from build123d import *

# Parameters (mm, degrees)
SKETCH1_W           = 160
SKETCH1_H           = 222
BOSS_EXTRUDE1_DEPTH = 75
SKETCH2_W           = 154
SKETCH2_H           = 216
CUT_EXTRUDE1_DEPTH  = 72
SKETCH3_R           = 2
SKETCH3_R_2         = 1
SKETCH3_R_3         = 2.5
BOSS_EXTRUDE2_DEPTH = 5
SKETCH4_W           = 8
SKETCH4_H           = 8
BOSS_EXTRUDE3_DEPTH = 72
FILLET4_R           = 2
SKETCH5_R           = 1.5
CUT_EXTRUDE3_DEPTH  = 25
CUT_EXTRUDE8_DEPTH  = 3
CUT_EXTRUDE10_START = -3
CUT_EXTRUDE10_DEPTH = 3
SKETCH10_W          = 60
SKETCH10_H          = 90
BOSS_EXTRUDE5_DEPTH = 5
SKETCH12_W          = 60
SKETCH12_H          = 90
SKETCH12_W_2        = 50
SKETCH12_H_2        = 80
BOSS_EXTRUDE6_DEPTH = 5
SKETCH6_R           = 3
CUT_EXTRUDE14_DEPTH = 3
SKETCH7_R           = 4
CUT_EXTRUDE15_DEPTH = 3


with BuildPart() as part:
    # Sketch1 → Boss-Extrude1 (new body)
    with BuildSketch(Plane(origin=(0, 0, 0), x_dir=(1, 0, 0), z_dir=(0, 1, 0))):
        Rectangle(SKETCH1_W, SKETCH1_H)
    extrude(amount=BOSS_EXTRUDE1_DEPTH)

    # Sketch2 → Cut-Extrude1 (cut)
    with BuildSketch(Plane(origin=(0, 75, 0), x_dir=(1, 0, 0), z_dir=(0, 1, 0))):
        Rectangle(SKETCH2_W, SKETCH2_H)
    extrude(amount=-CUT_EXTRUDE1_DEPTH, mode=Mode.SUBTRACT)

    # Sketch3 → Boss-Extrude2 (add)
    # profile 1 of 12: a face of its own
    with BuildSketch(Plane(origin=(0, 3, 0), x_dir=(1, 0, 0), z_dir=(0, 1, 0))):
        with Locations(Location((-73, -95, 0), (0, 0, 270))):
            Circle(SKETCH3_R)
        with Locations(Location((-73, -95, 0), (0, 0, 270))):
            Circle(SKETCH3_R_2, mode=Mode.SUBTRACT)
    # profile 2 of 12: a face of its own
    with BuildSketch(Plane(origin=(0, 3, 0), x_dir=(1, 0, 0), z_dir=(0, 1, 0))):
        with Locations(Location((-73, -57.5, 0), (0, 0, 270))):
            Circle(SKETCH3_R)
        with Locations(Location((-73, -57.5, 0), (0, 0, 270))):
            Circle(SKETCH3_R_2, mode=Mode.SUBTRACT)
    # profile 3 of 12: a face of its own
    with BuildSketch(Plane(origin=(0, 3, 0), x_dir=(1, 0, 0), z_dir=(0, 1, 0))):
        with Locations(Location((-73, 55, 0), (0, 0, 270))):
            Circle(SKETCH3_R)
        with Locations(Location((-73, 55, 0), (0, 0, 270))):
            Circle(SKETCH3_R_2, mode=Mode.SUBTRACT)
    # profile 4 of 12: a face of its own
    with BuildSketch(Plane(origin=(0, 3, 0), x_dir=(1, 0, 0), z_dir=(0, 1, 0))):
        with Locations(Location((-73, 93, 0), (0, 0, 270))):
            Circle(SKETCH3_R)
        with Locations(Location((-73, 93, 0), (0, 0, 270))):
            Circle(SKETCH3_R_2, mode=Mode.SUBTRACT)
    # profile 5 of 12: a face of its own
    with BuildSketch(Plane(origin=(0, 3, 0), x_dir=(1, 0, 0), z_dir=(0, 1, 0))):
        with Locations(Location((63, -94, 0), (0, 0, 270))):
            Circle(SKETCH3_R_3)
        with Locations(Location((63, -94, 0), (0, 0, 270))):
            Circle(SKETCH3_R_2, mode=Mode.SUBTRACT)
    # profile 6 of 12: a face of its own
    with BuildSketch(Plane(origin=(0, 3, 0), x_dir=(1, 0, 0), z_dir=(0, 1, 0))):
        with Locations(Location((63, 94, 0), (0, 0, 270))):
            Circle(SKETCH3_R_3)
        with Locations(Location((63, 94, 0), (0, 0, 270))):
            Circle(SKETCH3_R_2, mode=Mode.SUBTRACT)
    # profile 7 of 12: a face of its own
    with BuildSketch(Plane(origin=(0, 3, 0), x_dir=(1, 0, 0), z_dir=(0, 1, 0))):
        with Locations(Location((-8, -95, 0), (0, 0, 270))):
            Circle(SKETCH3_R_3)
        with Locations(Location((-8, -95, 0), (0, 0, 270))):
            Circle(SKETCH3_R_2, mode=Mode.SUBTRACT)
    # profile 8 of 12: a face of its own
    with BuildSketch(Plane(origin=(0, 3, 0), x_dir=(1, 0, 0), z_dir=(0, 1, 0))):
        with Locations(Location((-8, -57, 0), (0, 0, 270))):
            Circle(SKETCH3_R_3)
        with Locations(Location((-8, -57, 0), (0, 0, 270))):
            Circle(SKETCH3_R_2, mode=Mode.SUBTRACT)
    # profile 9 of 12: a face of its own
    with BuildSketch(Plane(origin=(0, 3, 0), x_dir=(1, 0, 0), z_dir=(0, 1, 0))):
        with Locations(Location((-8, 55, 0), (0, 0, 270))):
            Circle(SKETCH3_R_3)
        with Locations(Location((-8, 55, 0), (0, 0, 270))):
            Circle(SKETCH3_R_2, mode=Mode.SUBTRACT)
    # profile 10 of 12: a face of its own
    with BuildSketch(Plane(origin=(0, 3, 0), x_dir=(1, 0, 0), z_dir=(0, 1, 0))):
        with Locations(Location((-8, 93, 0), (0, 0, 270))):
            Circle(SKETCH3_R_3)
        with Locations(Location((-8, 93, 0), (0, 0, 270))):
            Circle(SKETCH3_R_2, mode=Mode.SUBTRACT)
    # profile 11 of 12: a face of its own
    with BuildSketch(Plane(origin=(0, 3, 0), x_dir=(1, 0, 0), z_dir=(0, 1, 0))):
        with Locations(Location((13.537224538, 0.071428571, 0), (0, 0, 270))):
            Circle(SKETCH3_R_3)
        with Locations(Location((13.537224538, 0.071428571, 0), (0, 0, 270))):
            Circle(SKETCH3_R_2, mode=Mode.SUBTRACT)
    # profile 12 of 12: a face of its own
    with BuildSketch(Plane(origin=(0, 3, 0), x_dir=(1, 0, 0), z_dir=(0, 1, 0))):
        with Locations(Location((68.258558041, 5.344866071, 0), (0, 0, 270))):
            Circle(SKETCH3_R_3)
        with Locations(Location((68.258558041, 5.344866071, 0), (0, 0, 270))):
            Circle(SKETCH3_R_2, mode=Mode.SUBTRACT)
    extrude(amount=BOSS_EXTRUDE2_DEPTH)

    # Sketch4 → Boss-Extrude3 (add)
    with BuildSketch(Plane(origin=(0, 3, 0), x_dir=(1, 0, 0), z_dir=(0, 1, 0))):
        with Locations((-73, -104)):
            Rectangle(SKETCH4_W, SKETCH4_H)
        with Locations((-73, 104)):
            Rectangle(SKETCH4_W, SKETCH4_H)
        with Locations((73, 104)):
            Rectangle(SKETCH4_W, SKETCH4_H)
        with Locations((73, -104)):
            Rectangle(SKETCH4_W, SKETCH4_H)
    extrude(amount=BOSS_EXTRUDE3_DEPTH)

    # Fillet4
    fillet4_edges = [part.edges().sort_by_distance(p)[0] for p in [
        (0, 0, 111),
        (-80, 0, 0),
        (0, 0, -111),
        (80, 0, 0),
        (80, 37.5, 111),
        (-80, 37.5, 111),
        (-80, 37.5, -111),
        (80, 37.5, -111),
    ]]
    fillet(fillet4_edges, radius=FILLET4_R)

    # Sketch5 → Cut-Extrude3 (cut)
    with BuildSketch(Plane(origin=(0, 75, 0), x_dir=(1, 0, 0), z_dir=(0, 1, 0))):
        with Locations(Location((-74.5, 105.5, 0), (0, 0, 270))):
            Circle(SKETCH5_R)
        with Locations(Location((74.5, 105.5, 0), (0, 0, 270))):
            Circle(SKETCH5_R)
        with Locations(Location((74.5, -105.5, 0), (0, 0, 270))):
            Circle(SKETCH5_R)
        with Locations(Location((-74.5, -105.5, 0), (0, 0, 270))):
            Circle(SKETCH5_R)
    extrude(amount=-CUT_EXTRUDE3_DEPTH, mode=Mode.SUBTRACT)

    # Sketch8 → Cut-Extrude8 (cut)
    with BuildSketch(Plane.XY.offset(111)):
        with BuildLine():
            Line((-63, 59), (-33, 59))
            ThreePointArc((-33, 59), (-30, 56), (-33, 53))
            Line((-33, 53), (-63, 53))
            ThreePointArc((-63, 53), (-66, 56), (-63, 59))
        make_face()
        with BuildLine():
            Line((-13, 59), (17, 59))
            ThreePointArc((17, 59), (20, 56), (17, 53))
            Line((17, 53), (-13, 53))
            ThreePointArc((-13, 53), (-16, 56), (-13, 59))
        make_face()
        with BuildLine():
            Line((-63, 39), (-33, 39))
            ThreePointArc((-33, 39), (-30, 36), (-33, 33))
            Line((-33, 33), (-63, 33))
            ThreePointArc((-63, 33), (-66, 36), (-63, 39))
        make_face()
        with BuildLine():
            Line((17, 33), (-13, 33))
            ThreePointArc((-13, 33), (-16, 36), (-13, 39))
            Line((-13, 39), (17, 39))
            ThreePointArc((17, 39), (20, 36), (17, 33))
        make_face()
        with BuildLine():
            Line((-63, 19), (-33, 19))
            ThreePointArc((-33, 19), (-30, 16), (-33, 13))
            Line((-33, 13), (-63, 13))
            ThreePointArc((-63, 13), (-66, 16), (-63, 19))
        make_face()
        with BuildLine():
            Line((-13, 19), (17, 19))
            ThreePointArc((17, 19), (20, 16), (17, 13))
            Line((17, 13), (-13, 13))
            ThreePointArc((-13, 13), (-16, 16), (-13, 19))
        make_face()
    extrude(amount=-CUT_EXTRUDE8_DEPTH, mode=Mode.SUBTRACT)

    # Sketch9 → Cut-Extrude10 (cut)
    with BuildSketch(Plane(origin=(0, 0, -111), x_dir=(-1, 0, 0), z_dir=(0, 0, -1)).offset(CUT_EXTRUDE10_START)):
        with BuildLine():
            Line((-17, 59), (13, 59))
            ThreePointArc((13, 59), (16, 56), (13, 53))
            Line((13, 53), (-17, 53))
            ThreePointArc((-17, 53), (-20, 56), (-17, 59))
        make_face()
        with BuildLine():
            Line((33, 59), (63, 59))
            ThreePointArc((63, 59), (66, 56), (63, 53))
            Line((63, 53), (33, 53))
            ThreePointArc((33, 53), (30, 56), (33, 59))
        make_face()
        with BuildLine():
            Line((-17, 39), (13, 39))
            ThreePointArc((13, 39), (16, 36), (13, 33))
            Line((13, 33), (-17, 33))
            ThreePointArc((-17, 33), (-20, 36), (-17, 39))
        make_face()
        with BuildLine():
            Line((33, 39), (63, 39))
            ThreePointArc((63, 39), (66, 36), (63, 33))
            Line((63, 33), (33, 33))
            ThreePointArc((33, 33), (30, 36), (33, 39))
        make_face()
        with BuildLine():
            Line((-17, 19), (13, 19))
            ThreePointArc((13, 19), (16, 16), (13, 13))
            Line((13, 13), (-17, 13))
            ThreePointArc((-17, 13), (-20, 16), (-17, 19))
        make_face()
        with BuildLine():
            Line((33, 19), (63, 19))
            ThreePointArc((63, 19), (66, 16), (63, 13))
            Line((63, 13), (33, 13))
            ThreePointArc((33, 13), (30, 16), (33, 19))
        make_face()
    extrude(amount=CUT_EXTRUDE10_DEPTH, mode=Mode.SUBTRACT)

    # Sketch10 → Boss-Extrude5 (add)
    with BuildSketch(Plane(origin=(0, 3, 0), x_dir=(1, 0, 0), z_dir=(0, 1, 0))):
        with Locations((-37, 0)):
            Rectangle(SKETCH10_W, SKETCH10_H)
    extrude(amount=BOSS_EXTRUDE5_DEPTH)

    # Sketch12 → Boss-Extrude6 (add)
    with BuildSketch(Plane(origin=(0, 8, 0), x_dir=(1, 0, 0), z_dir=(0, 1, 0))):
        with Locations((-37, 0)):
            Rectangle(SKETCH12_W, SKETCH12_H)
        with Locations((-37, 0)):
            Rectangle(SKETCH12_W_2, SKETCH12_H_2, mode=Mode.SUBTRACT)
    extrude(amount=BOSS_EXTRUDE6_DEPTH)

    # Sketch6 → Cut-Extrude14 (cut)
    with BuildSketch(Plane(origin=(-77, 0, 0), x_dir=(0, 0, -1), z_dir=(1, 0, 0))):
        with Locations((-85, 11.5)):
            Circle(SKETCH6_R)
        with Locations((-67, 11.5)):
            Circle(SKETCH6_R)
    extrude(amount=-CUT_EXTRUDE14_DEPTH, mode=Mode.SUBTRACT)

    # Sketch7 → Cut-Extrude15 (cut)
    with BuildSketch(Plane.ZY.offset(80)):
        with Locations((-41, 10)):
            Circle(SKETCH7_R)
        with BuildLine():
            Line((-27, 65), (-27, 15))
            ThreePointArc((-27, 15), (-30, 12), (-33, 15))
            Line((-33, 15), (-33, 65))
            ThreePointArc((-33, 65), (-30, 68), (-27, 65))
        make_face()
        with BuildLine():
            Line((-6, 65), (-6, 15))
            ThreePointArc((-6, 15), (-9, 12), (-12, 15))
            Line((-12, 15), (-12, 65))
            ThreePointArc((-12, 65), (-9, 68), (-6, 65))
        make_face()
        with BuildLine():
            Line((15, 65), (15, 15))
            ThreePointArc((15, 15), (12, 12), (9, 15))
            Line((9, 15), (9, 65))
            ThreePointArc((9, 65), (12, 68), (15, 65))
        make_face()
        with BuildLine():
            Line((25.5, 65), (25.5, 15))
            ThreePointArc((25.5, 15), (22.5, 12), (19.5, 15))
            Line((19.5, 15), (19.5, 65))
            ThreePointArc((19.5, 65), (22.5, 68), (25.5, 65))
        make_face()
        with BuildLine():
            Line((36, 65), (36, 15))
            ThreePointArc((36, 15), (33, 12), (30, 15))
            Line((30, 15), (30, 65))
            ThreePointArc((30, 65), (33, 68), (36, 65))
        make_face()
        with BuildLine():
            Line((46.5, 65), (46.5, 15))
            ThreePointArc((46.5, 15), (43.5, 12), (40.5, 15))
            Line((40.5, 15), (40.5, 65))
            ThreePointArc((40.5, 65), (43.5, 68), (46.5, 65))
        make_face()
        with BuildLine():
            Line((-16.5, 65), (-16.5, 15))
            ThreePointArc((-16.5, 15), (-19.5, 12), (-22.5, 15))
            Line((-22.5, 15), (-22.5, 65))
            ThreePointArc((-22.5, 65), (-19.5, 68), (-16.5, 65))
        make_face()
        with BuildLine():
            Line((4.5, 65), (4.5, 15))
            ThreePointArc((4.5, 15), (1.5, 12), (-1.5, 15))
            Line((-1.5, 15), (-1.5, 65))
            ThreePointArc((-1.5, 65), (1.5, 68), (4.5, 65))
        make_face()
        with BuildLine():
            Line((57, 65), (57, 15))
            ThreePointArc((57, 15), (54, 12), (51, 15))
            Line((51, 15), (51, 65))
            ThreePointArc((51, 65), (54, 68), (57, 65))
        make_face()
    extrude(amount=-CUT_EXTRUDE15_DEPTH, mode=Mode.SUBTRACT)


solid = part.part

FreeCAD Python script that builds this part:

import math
import FreeCAD as App
import Part
import Sketcher

V = App.Vector
Q = App.Units.Quantity


def edges_at(feature, points):
    """Names of the edges that pass closest to the given points."""
    edges = feature.Shape.Edges
    near = lambda p: min(range(len(edges)), key=lambda i: edges[i].distToShape(Part.Vertex(*p))[0])
    return sorted({f"Edge{near(p) + 1}" for p in points})


def add_polygon(sketch, points):
    """Adds a closed chain of lines whose ends are joined by coincident constraints."""
    first, n = sketch.GeometryCount, len(points)
    for a, b in zip(points, points[1:] + points[:1]):
        sketch.addGeometry(Part.LineSegment(App.Vector(*a, 0), App.Vector(*b, 0)), False)
    for i in range(n):
        sketch.addConstraint(Sketcher.Constraint("Coincident", first + i, 2, first + (i + 1) % n, 1))

doc = App.newDocument("Part")
params = doc.addObject("Spreadsheet::Sheet", "Params")
for row, (alias, value) in enumerate([
    ("sketch1_width", "160 mm"),
    ("sketch1_height", "222 mm"),
    ("pad1_length", "75 mm"),
    ("sketch2_width", "154 mm"),
    ("sketch2_height", "216 mm"),
    ("pocket1_length", "72 mm"),
    ("sketch3_diameter", "4 mm"),
    ("sketch3_diameter2", "2 mm"),
    ("sketch3_diameter3", "5 mm"),
    ("pad2_length", "5 mm"),
    ("sketch4_width", "8 mm"),
    ("pad3_length", "72 mm"),
    ("fillet_radius", "2 mm"),
    ("sketch5_diameter", "3 mm"),
    ("pocket2_length", "25 mm"),
    ("sketch6_radius", "3 mm"),
    ("sketch6_width", "30 mm"),
    ("pocket3_length", "3 mm"),
    ("sketch7_radius", "3 mm"),
    ("sketch7_width", "30 mm"),
    ("pocket4_length", "3 mm"),
    ("sketch8_width", "60 mm"),
    ("sketch8_height", "90 mm"),
    ("pad4_length", "5 mm"),
    ("sketch9_width", "60 mm"),
    ("sketch9_width2", "50 mm"),
    ("sketch9_height", "90 mm"),
    ("sketch9_height2", "80 mm"),
    ("pad5_length", "5 mm"),
    ("sketch10_diameter", "6 mm"),
    ("pocket5_length", "3 mm"),
    ("sketch11_diameter", "8 mm"),
    ("sketch11_radius", "3 mm"),
    ("sketch11_width", "50 mm"),
    ("pocket6_length", "3 mm"),
], start=1):
    params.set(f"A{row}", alias)
    params.set(f"B{row}", "=" + value)
    params.setAlias(f"B{row}", alias)

body = doc.addObject("PartDesign::Body", "Body")

sketch1 = doc.addObject("Sketcher::SketchObject", "Sketch")
body.addObject(sketch1)
sketch1.AttachmentSupport = (doc.XZ_Plane, [""])
sketch1.MapMode = "FlatFace"
add_polygon(sketch1, [(-80, -111), (-80, 111), (80, 111), (80, -111)])
sketch1.addConstraint([
    Sketcher.Constraint("Vertical", 0),
    Sketcher.Constraint("Horizontal", 1),
    Sketcher.Constraint("Vertical", 2),
    Sketcher.Constraint("Horizontal", 3),
    Sketcher.Constraint("Symmetric", 0, 2, 2, 2, -1, 1),
    Sketcher.Constraint("DistanceX", 1, 1, 1, 2, Q("160 mm")),
    Sketcher.Constraint("DistanceY", 0, 1, 0, 2, Q("222 mm")),
])
sketch1.setExpression("Constraints[9]", "Params.sketch1_width")
sketch1.setExpression("Constraints[10]", "Params.sketch1_height")
pad1 = doc.addObject("PartDesign::Pad", "Pad")
body.addObject(pad1)
pad1.Profile = sketch1
pad1.setExpression("Length", "Params.pad1_length")
pad1.Reversed = True

sketch2 = doc.addObject("Sketcher::SketchObject", "Sketch001")
body.addObject(sketch2)
sketch2.AttachmentSupport = (doc.XZ_Plane, [""])
sketch2.MapMode = "FlatFace"
sketch2.AttachmentOffset = App.Placement(V(0, 0, -75), App.Rotation())
add_polygon(sketch2, [(-77, -108), (-77, 108), (77, 108), (77, -108)])
sketch2.addConstraint([
    Sketcher.Constraint("Vertical", 0),
    Sketcher.Constraint("Horizontal", 1),
    Sketcher.Constraint("Vertical", 2),
    Sketcher.Constraint("Horizontal", 3),
    Sketcher.Constraint("Symmetric", 0, 2, 2, 2, -1, 1),
    Sketcher.Constraint("DistanceX", 1, 1, 1, 2, Q("154 mm")),
    Sketcher.Constraint("DistanceY", 0, 1, 0, 2, Q("216 mm")),
])
sketch2.setExpression("Constraints[9]", "Params.sketch2_width")
sketch2.setExpression("Constraints[10]", "Params.sketch2_height")
pocket1 = doc.addObject("PartDesign::Pocket", "Pocket")
body.addObject(pocket1)
pocket1.Profile = sketch2
pocket1.setExpression("Length", "Params.pocket1_length")
pocket1.Reversed = True

sketch3 = doc.addObject("Sketcher::SketchObject", "Sketch002")
body.addObject(sketch3)
sketch3.AttachmentSupport = (doc.XZ_Plane, [""])
sketch3.MapMode = "FlatFace"
sketch3.AttachmentOffset = App.Placement(V(0, 0, -3), App.Rotation())
sketch3.addGeometry([
    Part.Circle(V(-73, 95, 0), V(0, 0, 1), 2),
    Part.Circle(V(-73, 95, 0), V(0, 0, 1), 1),
    Part.Circle(V(-73, 57.5, 0), V(0, 0, 1), 2),
    Part.Circle(V(-73, 57.5, 0), V(0, 0, 1), 1),
    Part.Circle(V(-73, -55, 0), V(0, 0, 1), 2),
    Part.Circle(V(-73, -55, 0), V(0, 0, 1), 1),
    Part.Circle(V(-73, -93, 0), V(0, 0, 1), 2),
    Part.Circle(V(-73, -93, 0), V(0, 0, 1), 1),
    Part.Circle(V(63, 94, 0), V(0, 0, 1), 2.5),
    Part.Circle(V(63, 94, 0), V(0, 0, 1), 1),
    Part.Circle(V(63, -94, 0), V(0, 0, 1), 2.5),
    Part.Circle(V(63, -94, 0), V(0, 0, 1), 1),
    Part.Circle(V(-8, 95, 0), V(0, 0, 1), 2.5),
    Part.Circle(V(-8, 95, 0), V(0, 0, 1), 1),
    Part.Circle(V(-8, 57, 0), V(0, 0, 1), 2.5),
    Part.Circle(V(-8, 57, 0), V(0, 0, 1), 1),
    Part.Circle(V(-8, -55, 0), V(0, 0, 1), 2.5),
    Part.Circle(V(-8, -55, 0), V(0, 0, 1), 1),
    Part.Circle(V(-8, -93, 0), V(0, 0, 1), 2.5),
    Part.Circle(V(-8, -93, 0), V(0, 0, 1), 1),
    Part.Circle(V(13.537225, -0.071429, 0), V(0, 0, 1), 2.5),
    Part.Circle(V(13.537225, -0.071429, 0), V(0, 0, 1), 1),
    Part.Circle(V(68.258558, -5.344866, 0), V(0, 0, 1), 2.5),
    Part.Circle(V(68.258558, -5.344866, 0), V(0, 0, 1), 1),
], False)
sketch3.addConstraint([
    Sketcher.Constraint("Coincident", 1, 3, 0, 3),
    Sketcher.Constraint("Coincident", 3, 3, 2, 3),
    Sketcher.Constraint("Coincident", 5, 3, 4, 3),
    Sketcher.Constraint("Coincident", 7, 3, 6, 3),
    Sketcher.Constraint("Coincident", 9, 3, 8, 3),
    Sketcher.Constraint("Coincident", 11, 3, 10, 3),
    Sketcher.Constraint("Coincident", 13, 3, 12, 3),
    Sketcher.Constraint("Coincident", 15, 3, 14, 3),
    Sketcher.Constraint("Coincident", 17, 3, 16, 3),
    Sketcher.Constraint("Coincident", 19, 3, 18, 3),
    Sketcher.Constraint("Coincident", 21, 3, 20, 3),
    Sketcher.Constraint("Coincident", 23, 3, 22, 3),
    Sketcher.Constraint("Equal", 0, 2),
    Sketcher.Constraint("Equal", 1, 3),
    Sketcher.Constraint("Equal", 2, 4),
    Sketcher.Constraint("Equal", 3, 5),
    Sketcher.Constraint("Equal", 4, 6),
    Sketcher.Constraint("Equal", 5, 7),
    Sketcher.Constraint("Equal", 7, 9),
    Sketcher.Constraint("Equal", 8, 10),
    Sketcher.Constraint("Equal", 9, 11),
    Sketcher.Constraint("Equal", 10, 12),
    Sketcher.Constraint("Equal", 11, 13),
    Sketcher.Constraint("Equal", 12, 14),
    Sketcher.Constraint("Equal", 13, 15),
    Sketcher.Constraint("Equal", 14, 16),
    Sketcher.Constraint("Equal", 15, 17),
    Sketcher.Constraint("Equal", 16, 18),
    Sketcher.Constraint("Equal", 17, 19),
    Sketcher.Constraint("Equal", 18, 20),
    Sketcher.Constraint("Equal", 19, 21),
    Sketcher.Constraint("Equal", 20, 22),
    Sketcher.Constraint("Equal", 21, 23),
    Sketcher.Constraint("Symmetric", 8, 3, 10, 3, -1),
    Sketcher.Constraint("Horizontal", 1, 3, 12, 3),
    Sketcher.Constraint("Horizontal", 5, 3, 16, 3),
    Sketcher.Constraint("Horizontal", 7, 3, 18, 3),
    Sketcher.Constraint("Vertical", 1, 3, 2, 3),
    Sketcher.Constraint("Vertical", 3, 3, 4, 3),
    Sketcher.Constraint("Vertical", 5, 3, 6, 3),
    Sketcher.Constraint("Vertical", 13, 3, 14, 3),
    Sketcher.Constraint("Vertical", 15, 3, 16, 3),
    Sketcher.Constraint("Vertical", 17, 3, 18, 3),
    Sketcher.Constraint("Diameter", 0, Q("4 mm")),
    Sketcher.Constraint("Diameter", 1, Q("2 mm")),
    Sketcher.Constraint("Diameter", 8, Q("5 mm")),
    Sketcher.Constraint("DistanceX", 0, 3, -1, 1, Q("73 mm")),
    Sketcher.Constraint("DistanceY", -1, 1, 0, 3, Q("95 mm")),
    Sketcher.Constraint("DistanceY", 4, 3, -1, 1, Q("55 mm")),
    Sketcher.Constraint("DistanceY", 6, 3, -1, 1, Q("93 mm")),
    Sketcher.Constraint("DistanceX", -1, 1, 8, 3, Q("63 mm")),
    Sketcher.Constraint("DistanceY", -1, 1, 8, 3, Q("94 mm")),
    Sketcher.Constraint("DistanceX", 12, 3, -1, 1, Q("8 mm")),
    Sketcher.Constraint("DistanceY", -1, 1, 14, 3, Q("57 mm")),
    Sketcher.Constraint("DistanceY", -1, 1, 2, 3, Q("57.5 mm")),
    Sketcher.Constraint("DistanceY", 20, 3, -1, 1, Q("0.071429 mm")),
    Sketcher.Constraint("DistanceX", -1, 1, 22, 3, Q("68.258558 mm")),
    Sketcher.Constraint("DistanceX", -1, 1, 20, 3, Q("13.537225 mm")),
    Sketcher.Constraint("DistanceY", 22, 3, -1, 1, Q("5.344866 mm")),
])
sketch3.setExpression("Constraints[43]", "Params.sketch3_diameter")
sketch3.setExpression("Constraints[44]", "Params.sketch3_diameter2")
sketch3.setExpression("Constraints[45]", "Params.sketch3_diameter3")
pad2 = doc.addObject("PartDesign::Pad", "Pad001")
body.addObject(pad2)
pad2.Profile = sketch3
pad2.setExpression("Length", "Params.pad2_length")
pad2.Reversed = True

sketch4 = doc.addObject("Sketcher::SketchObject", "Sketch003")
body.addObject(sketch4)
sketch4.AttachmentSupport = (doc.XZ_Plane, [""])
sketch4.MapMode = "FlatFace"
sketch4.AttachmentOffset = App.Placement(V(0, 0, -3), App.Rotation())
add_polygon(sketch4, [(-77, 100), (-77, 108), (-69, 108), (-69, 100)])
add_polygon(sketch4, [(-77, -108), (-77, -100), (-69, -100), (-69, -108)])
add_polygon(sketch4, [(69, -108), (69, -100), (77, -100), (77, -108)])
add_polygon(sketch4, [(69, 100), (69, 108), (77, 108), (77, 100)])
sketch4.addConstraint([
    Sketcher.Constraint("Vertical", 0),
    Sketcher.Constraint("Horizontal", 1),
    Sketcher.Constraint("Vertical", 2),
    Sketcher.Constraint("Horizontal", 3),
    Sketcher.Constraint("Vertical", 4),
    Sketcher.Constraint("Horizontal", 5),
    Sketcher.Constraint("Vertical", 6),
    Sketcher.Constraint("Horizontal", 7),
    Sketcher.Constraint("Vertical", 8),
    Sketcher.Constraint("Horizontal", 9),
    Sketcher.Constraint("Vertical", 10),
    Sketcher.Constraint("Horizontal", 11),
    Sketcher.Constraint("Vertical", 12),
    Sketcher.Constraint("Horizontal", 13),
    Sketcher.Constraint("Vertical", 14),
    Sketcher.Constraint("Horizontal", 15),
    Sketcher.Constraint("Symmetric", 2, 2, 8, 2, -1, 1),
    Sketcher.Constraint("Symmetric", 0, 2, 10, 2, -1, 1),
    Sketcher.Constraint("Symmetric", 6, 2, 12, 2, -1, 1),
    Sketcher.Constraint("Symmetric", 4, 2, 14, 2, -1, 1),
    Sketcher.Constraint("Symmetric", 5, 2, 8, 2, -2),
    Sketcher.Constraint("Symmetric", 7, 2, 10, 2, -2),
    Sketcher.Constraint("Equal", 15, 0),
    Sketcher.Constraint("DistanceX", 1, 1, 1, 2, Q("8 mm")),
    Sketcher.Constraint("DistanceX", 0, 2, -1, 1, Q("77 mm")),
    Sketcher.Constraint("DistanceY", -1, 1, 0, 2, Q("108 mm")),
])
sketch4.setExpression("Constraints[39]", "Params.sketch4_width")
pad3 = doc.addObject("PartDesign::Pad", "Pad002")
body.addObject(pad3)
pad3.Profile = sketch4
pad3.setExpression("Length", "Params.pad3_length")
pad3.Reversed = True
doc.recompute()

fillet = doc.addObject("PartDesign::Fillet", "Fillet")
body.addObject(fillet)
fillet.Base = (pad3, edges_at(pad3, [
    (0, 0, 111),
    (-80, 0, 0),
    (0, 0, -111),
    (80, 0, 0),
    (80, 37.5, 111),
    (-80, 37.5, 111),
    (-80, 37.5, -111),
    (80, 37.5, -111),
]))
fillet.setExpression("Radius", "Params.fillet_radius")

sketch5 = doc.addObject("Sketcher::SketchObject", "Sketch004")
body.addObject(sketch5)
sketch5.AttachmentSupport = (doc.XZ_Plane, [""])
sketch5.MapMode = "FlatFace"
sketch5.AttachmentOffset = App.Placement(V(0, 0, -75), App.Rotation())
sketch5.addGeometry([
    Part.Circle(V(-74.5, -105.5, 0), V(0, 0, 1), 1.5),
    Part.Circle(V(74.5, -105.5, 0), V(0, 0, 1), 1.5),
    Part.Circle(V(74.5, 105.5, 0), V(0, 0, 1), 1.5),
    Part.Circle(V(-74.5, 105.5, 0), V(0, 0, 1), 1.5),
], False)
sketch5.addConstraint([
    Sketcher.Constraint("Equal", 0, 1),
    Sketcher.Constraint("Equal", 1, 2),
    Sketcher.Constraint("Equal", 2, 3),
    Sketcher.Constraint("Symmetric", 0, 3, 2, 3, -1, 1),
    Sketcher.Constraint("Symmetric", 1, 3, 3, 3, -1, 1),
    Sketcher.Constraint("Symmetric", 0, 3, 1, 3, -2),
    Sketcher.Constraint("Diameter", 0, Q("3 mm")),
    Sketcher.Constraint("DistanceX", 0, 3, 1, 3, Q("149 mm")),
    Sketcher.Constraint("DistanceY", 1, 3, 2, 3, Q("211 mm")),
])
sketch5.setExpression("Constraints[6]", "Params.sketch5_diameter")
pocket2 = doc.addObject("PartDesign::Pocket", "Pocket001")
body.addObject(pocket2)
pocket2.Profile = sketch5
pocket2.setExpression("Length", "Params.pocket2_length")
pocket2.Reversed = True

sketch6 = doc.addObject("Sketcher::SketchObject", "Sketch005")
body.addObject(sketch6)
sketch6.AttachmentSupport = (doc.XY_Plane, [""])
sketch6.MapMode = "FlatFace"
sketch6.AttachmentOffset = App.Placement(V(0, 0, 111), App.Rotation())
sketch6.addGeometry([
    Part.LineSegment(V(-33, 59, 0), V(-63, 59, 0)),
    Part.ArcOfCircle(Part.Circle(V(-63, 56, 0), V(0, 0, 1), 3), math.radians(90), math.radians(270)),
    Part.LineSegment(V(-63, 53, 0), V(-33, 53, 0)),
    Part.ArcOfCircle(Part.Circle(V(-33, 56, 0), V(0, 0, 1), 3), math.radians(-90), math.radians(90)),
    Part.LineSegment(V(17, 59, 0), V(-13, 59, 0)),
    Part.ArcOfCircle(Part.Circle(V(-13, 56, 0), V(0, 0, 1), 3), math.radians(90), math.radians(270)),
    Part.LineSegment(V(-13, 53, 0), V(17, 53, 0)),
    Part.ArcOfCircle(Part.Circle(V(17, 56, 0), V(0, 0, 1), 3), math.radians(-90), math.radians(90)),
    Part.LineSegment(V(-33, 39, 0), V(-63, 39, 0)),
    Part.ArcOfCircle(Part.Circle(V(-63, 36, 0), V(0, 0, 1), 3), math.radians(90), math.radians(270)),
    Part.LineSegment(V(-63, 33, 0), V(-33, 33, 0)),
    Part.ArcOfCircle(Part.Circle(V(-33, 36, 0), V(0, 0, 1), 3), math.radians(-90), math.radians(90)),
    Part.LineSegment(V(-13, 33, 0), V(17, 33, 0)),
    Part.ArcOfCircle(Part.Circle(V(17, 36, 0), V(0, 0, 1), 3), math.radians(-90), math.radians(90)),
    Part.LineSegment(V(17, 39, 0), V(-13, 39, 0)),
    Part.ArcOfCircle(Part.Circle(V(-13, 36, 0), V(0, 0, 1), 3), math.radians(90), math.radians(270)),
    Part.LineSegment(V(-33, 19, 0), V(-63, 19, 0)),
    Part.ArcOfCircle(Part.Circle(V(-63, 16, 0), V(0, 0, 1), 3), math.radians(90), math.radians(270)),
    Part.LineSegment(V(-63, 13, 0), V(-33, 13, 0)),
    Part.ArcOfCircle(Part.Circle(V(-33, 16, 0), V(0, 0, 1), 3), math.radians(-90), math.radians(90)),
    Part.LineSegment(V(17, 19, 0), V(-13, 19, 0)),
    Part.ArcOfCircle(Part.Circle(V(-13, 16, 0), V(0, 0, 1), 3), math.radians(90), math.radians(270)),
    Part.LineSegment(V(-13, 13, 0), V(17, 13, 0)),
    Part.ArcOfCircle(Part.Circle(V(17, 16, 0), V(0, 0, 1), 3), math.radians(-90), math.radians(90)),
], False)
sketch6.addConstraint([
    Sketcher.Constraint("Tangent", 0, 2, 1, 1),
    Sketcher.Constraint("Tangent", 1, 2, 2, 1),
    Sketcher.Constraint("Tangent", 2, 2, 3, 1),
    Sketcher.Constraint("Tangent", 3, 2, 0, 1),
    Sketcher.Constraint("Tangent", 4, 2, 5, 1),
    Sketcher.Constraint("Tangent", 5, 2, 6, 1),
    Sketcher.Constraint("Tangent", 6, 2, 7, 1),
    Sketcher.Constraint("Tangent", 7, 2, 4, 1),
    Sketcher.Constraint("Tangent", 8, 2, 9, 1),
    Sketcher.Constraint("Tangent", 9, 2, 10, 1),
    Sketcher.Constraint("Tangent", 10, 2, 11, 1),
    Sketcher.Constraint("Tangent", 11, 2, 8, 1),
    Sketcher.Constraint("Tangent", 12, 2, 13, 1),
    Sketcher.Constraint("Tangent", 13, 2, 14, 1),
    Sketcher.Constraint("Tangent", 14, 2, 15, 1),
    Sketcher.Constraint("Tangent", 15, 2, 12, 1),
    Sketcher.Constraint("Tangent", 16, 2, 17, 1),
    Sketcher.Constraint("Tangent", 17, 2, 18, 1),
    Sketcher.Constraint("Tangent", 18, 2, 19, 1),
    Sketcher.Constraint("Tangent", 19, 2, 16, 1),
    Sketcher.Constraint("Tangent", 20, 2, 21, 1),
    Sketcher.Constraint("Tangent", 21, 2, 22, 1),
    Sketcher.Constraint("Tangent", 22, 2, 23, 1),
    Sketcher.Constraint("Tangent", 23, 2, 20, 1),
    Sketcher.Constraint("Horizontal", 0),
    Sketcher.Constraint("Horizontal", 2),
    Sketcher.Constraint("Horizontal", 4),
    Sketcher.Constraint("Horizontal", 6),
    Sketcher.Constraint("Horizontal", 8),
    Sketcher.Constraint("Horizontal", 10),
    Sketcher.Constraint("Horizontal", 12),
    Sketcher.Constraint("Horizontal", 14),
    Sketcher.Constraint("Horizontal", 16),
    Sketcher.Constraint("Horizontal", 18),
    Sketcher.Constraint("Horizontal", 20),
    Sketcher.Constraint("Horizontal", 22),
    Sketcher.Constraint("Equal", 3, 5),
    Sketcher.Constraint("Equal", 7, 9),
    Sketcher.Constraint("Equal", 11, 13),
    Sketcher.Constraint("Equal", 15, 17),
    Sketcher.Constraint("Equal", 19, 21),
    Sketcher.Constraint("Horizontal", 3, 3, 5, 3),
    Sketcher.Constraint("Horizontal", 11, 3, 13, 3),
    Sketcher.Constraint("Horizontal", 19, 3, 21, 3),
    Sketcher.Constraint("Vertical", 1, 3, 9, 3),
    Sketcher.Constraint("Vertical", 3, 3, 11, 3),
    Sketcher.Constraint("Vertical", 7, 3, 13, 3),
    Sketcher.Constraint("Vertical", 5, 3, 15, 3),
    Sketcher.Constraint("Vertical", 9, 3, 17, 3),
    Sketcher.Constraint("Vertical", 11, 3, 19, 3),
    Sketcher.Constraint("Vertical", 15, 3, 21, 3),
    Sketcher.Constraint("Vertical", 13, 3, 23, 3),
    Sketcher.Constraint("Equal", 2, 4),
    Sketcher.Constraint("Radius", 1, Q("3 mm")),
    Sketcher.Constraint("DistanceX", 0, 2, 0, 1, Q("30 mm")),
    Sketcher.Constraint("DistanceX", 1, 3, -1, 1, Q("63 mm")),
    Sketcher.Constraint("DistanceY", -1, 1, 1, 3, Q("56 mm")),
    Sketcher.Constraint("DistanceX", 5, 3, -1, 1, Q("13 mm")),
    Sketcher.Constraint("DistanceY", -1, 1, 9, 3, Q("36 mm")),
    Sketcher.Constraint("DistanceY", -1, 1, 17, 3, Q("16 mm")),
])
sketch6.setExpression("Constraints[53]", "Params.sketch6_radius")
sketch6.setExpression("Constraints[54]", "Params.sketch6_width")
pocket3 = doc.addObject("PartDesign::Pocket", "Pocket002")
body.addObject(pocket3)
pocket3.Profile = sketch6
pocket3.setExpression("Length", "Params.pocket3_length")

sketch7 = doc.addObject("Sketcher::SketchObject", "Sketch006")
body.addObject(sketch7)
sketch7.AttachmentSupport = (doc.XY_Plane, [""])
sketch7.MapMode = "FlatFace"
sketch7.AttachmentOffset = App.Placement(V(0, 0, -108), App.Rotation())
sketch7.addGeometry([
    Part.LineSegment(V(-13, 59, 0), V(17, 59, 0)),
    Part.ArcOfCircle(Part.Circle(V(17, 56, 0), V(0, 0, 1), 3), math.radians(-90), math.radians(90)),
    Part.LineSegment(V(17, 53, 0), V(-13, 53, 0)),
    Part.ArcOfCircle(Part.Circle(V(-13, 56, 0), V(0, 0, 1), 3), math.radians(90), math.radians(270)),
    Part.LineSegment(V(-63, 59, 0), V(-33, 59, 0)),
    Part.ArcOfCircle(Part.Circle(V(-33, 56, 0), V(0, 0, 1), 3), math.radians(-90), math.radians(90)),
    Part.LineSegment(V(-33, 53, 0), V(-63, 53, 0)),
    Part.ArcOfCircle(Part.Circle(V(-63, 56, 0), V(0, 0, 1), 3), math.radians(90), math.radians(270)),
    Part.LineSegment(V(-13, 39, 0), V(17, 39, 0)),
    Part.ArcOfCircle(Part.Circle(V(17, 36, 0), V(0, 0, 1), 3), math.radians(-90), math.radians(90)),
    Part.LineSegment(V(17, 33, 0), V(-13, 33, 0)),
    Part.ArcOfCircle(Part.Circle(V(-13, 36, 0), V(0, 0, 1), 3), math.radians(90), math.radians(270)),
    Part.LineSegment(V(-63, 39, 0), V(-33, 39, 0)),
    Part.ArcOfCircle(Part.Circle(V(-33, 36, 0), V(0, 0, 1), 3), math.radians(-90), math.radians(90)),
    Part.LineSegment(V(-33, 33, 0), V(-63, 33, 0)),
    Part.ArcOfCircle(Part.Circle(V(-63, 36, 0), V(0, 0, 1), 3), math.radians(90), math.radians(270)),
    Part.LineSegment(V(-13, 19, 0), V(17, 19, 0)),
    Part.ArcOfCircle(Part.Circle(V(17, 16, 0), V(0, 0, 1), 3), math.radians(-90), math.radians(90)),
    Part.LineSegment(V(17, 13, 0), V(-13, 13, 0)),
    Part.ArcOfCircle(Part.Circle(V(-13, 16, 0), V(0, 0, 1), 3), math.radians(90), math.radians(270)),
    Part.LineSegment(V(-63, 19, 0), V(-33, 19, 0)),
    Part.ArcOfCircle(Part.Circle(V(-33, 16, 0), V(0, 0, 1), 3), math.radians(-90), math.radians(90)),
    Part.LineSegment(V(-33, 13, 0), V(-63, 13, 0)),
    Part.ArcOfCircle(Part.Circle(V(-63, 16, 0), V(0, 0, 1), 3), math.radians(90), math.radians(270)),
], False)
sketch7.addConstraint([
    Sketcher.Constraint("Tangent", 0, 2, 1, 2),
    Sketcher.Constraint("Tangent", 1, 1, 2, 1),
    Sketcher.Constraint("Tangent", 2, 2, 3, 2),
    Sketcher.Constraint("Tangent", 3, 1, 0, 1),
    Sketcher.Constraint("Tangent", 4, 2, 5, 2),
    Sketcher.Constraint("Tangent", 5, 1, 6, 1),
    Sketcher.Constraint("Tangent", 6, 2, 7, 2),
    Sketcher.Constraint("Tangent", 7, 1, 4, 1),
    Sketcher.Constraint("Tangent", 8, 2, 9, 2),
    Sketcher.Constraint("Tangent", 9, 1, 10, 1),
    Sketcher.Constraint("Tangent", 10, 2, 11, 2),
    Sketcher.Constraint("Tangent", 11, 1, 8, 1),
    Sketcher.Constraint("Tangent", 12, 2, 13, 2),
    Sketcher.Constraint("Tangent", 13, 1, 14, 1),
    Sketcher.Constraint("Tangent", 14, 2, 15, 2),
    Sketcher.Constraint("Tangent", 15, 1, 12, 1),
    Sketcher.Constraint("Tangent", 16, 2, 17, 2),
    Sketcher.Constraint("Tangent", 17, 1, 18, 1),
    Sketcher.Constraint("Tangent", 18, 2, 19, 2),
    Sketcher.Constraint("Tangent", 19, 1, 16, 1),
    Sketcher.Constraint("Tangent", 20, 2, 21, 2),
    Sketcher.Constraint("Tangent", 21, 1, 22, 1),
    Sketcher.Constraint("Tangent", 22, 2, 23, 2),
    Sketcher.Constraint("Tangent", 23, 1, 20, 1),
    Sketcher.Constraint("Horizontal", 0),
    Sketcher.Constraint("Horizontal", 2),
    Sketcher.Constraint("Horizontal", 4),
    Sketcher.Constraint("Horizontal", 6),
    Sketcher.Constraint("Horizontal", 8),
    Sketcher.Constraint("Horizontal", 10),
    Sketcher.Constraint("Horizontal", 12),
    Sketcher.Constraint("Horizontal", 14),
    Sketcher.Constraint("Horizontal", 16),
    Sketcher.Constraint("Horizontal", 18),
    Sketcher.Constraint("Horizontal", 20),
    Sketcher.Constraint("Horizontal", 22),
    Sketcher.Constraint("Equal", 3, 5),
    Sketcher.Constraint("Equal", 7, 9),
    Sketcher.Constraint("Equal", 11, 13),
    Sketcher.Constraint("Equal", 15, 17),
    Sketcher.Constraint("Equal", 19, 21),
    Sketcher.Constraint("Horizontal", 3, 3, 5, 3),
    Sketcher.Constraint("Horizontal", 11, 3, 13, 3),
    Sketcher.Constraint("Horizontal", 19, 3, 21, 3),
    Sketcher.Constraint("Vertical", 1, 3, 9, 3),
    Sketcher.Constraint("Vertical", 3, 3, 11, 3),
    Sketcher.Constraint("Vertical", 5, 3, 13, 3),
    Sketcher.Constraint("Vertical", 7, 3, 15, 3),
    Sketcher.Constraint("Vertical", 9, 3, 17, 3),
    Sketcher.Constraint("Vertical", 11, 3, 19, 3),
    Sketcher.Constraint("Vertical", 13, 3, 21, 3),
    Sketcher.Constraint("Vertical", 15, 3, 23, 3),
    Sketcher.Constraint("Equal", 2, 4),
    Sketcher.Constraint("Radius", 1, Q("3 mm")),
    Sketcher.Constraint("DistanceX", 0, 1, 0, 2, Q("30 mm")),
    Sketcher.Constraint("DistanceX", -1, 1, 1, 3, Q("17 mm")),
    Sketcher.Constraint("DistanceY", -1, 1, 1, 3, Q("56 mm")),
    Sketcher.Constraint("DistanceX", 5, 3, -1, 1, Q("33 mm")),
    Sketcher.Constraint("DistanceY", -1, 1, 9, 3, Q("36 mm")),
    Sketcher.Constraint("DistanceY", -1, 1, 17, 3, Q("16 mm")),
])
sketch7.setExpression("Constraints[53]", "Params.sketch7_radius")
sketch7.setExpression("Constraints[54]", "Params.sketch7_width")
pocket4 = doc.addObject("PartDesign::Pocket", "Pocket003")
body.addObject(pocket4)
pocket4.Profile = sketch7
pocket4.setExpression("Length", "Params.pocket4_length")

sketch8 = doc.addObject("Sketcher::SketchObject", "Sketch007")
body.addObject(sketch8)
sketch8.AttachmentSupport = (doc.XZ_Plane, [""])
sketch8.MapMode = "FlatFace"
sketch8.AttachmentOffset = App.Placement(V(0, 0, -3), App.Rotation())
add_polygon(sketch8, [(-67, -45), (-67, 45), (-7, 45), (-7, -45)])
sketch8.addConstraint([
    Sketcher.Constraint("Vertical", 0),
    Sketcher.Constraint("Horizontal", 1),
    Sketcher.Constraint("Vertical", 2),
    Sketcher.Constraint("Horizontal", 3),
    Sketcher.Constraint("DistanceX", 1, 1, 1, 2, Q("60 mm")),
    Sketcher.Constraint("DistanceY", 0, 1, 0, 2, Q("90 mm")),
    Sketcher.Constraint("DistanceX", 0, 2, -1, 1, Q("67 mm")),
    Sketcher.Constraint("DistanceY", -1, 1, 0, 2, Q("45 mm")),
])
sketch8.setExpression("Constraints[8]", "Params.sketch8_width")
sketch8.setExpression("Constraints[9]", "Params.sketch8_height")
pad4 = doc.addObject("PartDesign::Pad", "Pad003")
body.addObject(pad4)
pad4.Profile = sketch8
pad4.setExpression("Length", "Params.pad4_length")
pad4.Reversed = True

sketch9 = doc.addObject("Sketcher::SketchObject", "Sketch008")
body.addObject(sketch9)
sketch9.AttachmentSupport = (doc.XZ_Plane, [""])
sketch9.MapMode = "FlatFace"
sketch9.AttachmentOffset = App.Placement(V(0, 0, -8), App.Rotation())
add_polygon(sketch9, [(-67, -45), (-67, 45), (-7, 45), (-7, -45)])
add_polygon(sketch9, [(-12, 40), (-62, 40), (-62, -40), (-12, -40)])
sketch9.addConstraint([
    Sketcher.Constraint("Vertical", 0),
    Sketcher.Constraint("Horizontal", 1),
    Sketcher.Constraint("Vertical", 2),
    Sketcher.Constraint("Horizontal", 3),
    Sketcher.Constraint("Horizontal", 4),
    Sketcher.Constraint("Vertical", 5),
    Sketcher.Constraint("Horizontal", 6),
    Sketcher.Constraint("Vertical", 7),
    Sketcher.Constraint("DistanceX", 1, 1, 1, 2, Q("60 mm")),
    Sketcher.Constraint("DistanceX", 4, 2, 4, 1, Q("50 mm")),
    Sketcher.Constraint("DistanceY", 0, 1, 0, 2, Q("90 mm")),
    Sketcher.Constraint("DistanceY", 5, 2, 5, 1, Q("80 mm")),
    Sketcher.Constraint("DistanceX", 0, 2, -1, 1, Q("67 mm")),
    Sketcher.Constraint("DistanceY", -1, 1, 0, 2, Q("45 mm")),
    Sketcher.Constraint("DistanceX", 4, 2, -1, 1, Q("62 mm")),
    Sketcher.Constraint("DistanceY", -1, 1, 4, 2, Q("40 mm")),
])
sketch9.setExpression("Constraints[16]", "Params.sketch9_width")
sketch9.setExpression("Constraints[17]", "Params.sketch9_width2")
sketch9.setExpression("Constraints[18]", "Params.sketch9_height")
sketch9.setExpression("Constraints[19]", "Params.sketch9_height2")
pad5 = doc.addObject("PartDesign::Pad", "Pad004")
body.addObject(pad5)
pad5.Profile = sketch9
pad5.setExpression("Length", "Params.pad5_length")
pad5.Reversed = True

sketch10 = doc.addObject("Sketcher::SketchObject", "Sketch009")
body.addObject(sketch10)
sketch10.AttachmentSupport = (doc.YZ_Plane, [""])
sketch10.MapMode = "FlatFace"
sketch10.AttachmentOffset = App.Placement(V(0, 0, -77), App.Rotation())
sketch10.addGeometry([
    Part.Circle(V(11.5, 85, 0), V(0, 0, 1), 3),
    Part.Circle(V(11.5, 67, 0), V(0, 0, 1), 3),
], False)
sketch10.addConstraint([
    Sketcher.Constraint("Equal", 0, 1),
    Sketcher.Constraint("Vertical", 0, 3, 1, 3),
    Sketcher.Constraint("Diameter", 0, Q("6 mm")),
    Sketcher.Constraint("DistanceY", -1, 1, 0, 3, Q("85 mm")),
    Sketcher.Constraint("DistanceY", -1, 1, 1, 3, Q("67 mm")),
    Sketcher.Constraint("DistanceX", -1, 1, 0, 3, Q("11.5 mm")),
])
sketch10.setExpression("Constraints[2]", "Params.sketch10_diameter")
pocket5 = doc.addObject("PartDesign::Pocket", "Pocket004")
body.addObject(pocket5)
pocket5.Profile = sketch10
pocket5.setExpression("Length", "Params.pocket5_length")

sketch11 = doc.addObject("Sketcher::SketchObject", "Sketch010")
body.addObject(sketch11)
sketch11.AttachmentSupport = (doc.YZ_Plane, [""])
sketch11.MapMode = "FlatFace"
sketch11.AttachmentOffset = App.Placement(V(0, 0, -80), App.Rotation())
sketch11.addGeometry([
    Part.Circle(V(10, -41, 0), V(0, 0, 1), 4),
    Part.LineSegment(V(15, -27, 0), V(65, -27, 0)),
    Part.ArcOfCircle(Part.Circle(V(65, -30, 0), V(0, 0, 1), 3), math.radians(-90), math.radians(90)),
    Part.LineSegment(V(65, -33, 0), V(15, -33, 0)),
    Part.ArcOfCircle(Part.Circle(V(15, -30, 0), V(0, 0, 1), 3), math.radians(90), math.radians(270)),
    Part.LineSegment(V(15, -6, 0), V(65, -6, 0)),
    Part.ArcOfCircle(Part.Circle(V(65, -9, 0), V(0, 0, 1), 3), math.radians(-90), math.radians(90)),
    Part.LineSegment(V(65, -12, 0), V(15, -12, 0)),
    Part.ArcOfCircle(Part.Circle(V(15, -9, 0), V(0, 0, 1), 3), math.radians(90), math.radians(270)),
    Part.LineSegment(V(15, 15, 0), V(65, 15, 0)),
    Part.ArcOfCircle(Part.Circle(V(65, 12, 0), V(0, 0, 1), 3), math.radians(-90), math.radians(90)),
    Part.LineSegment(V(65, 9, 0), V(15, 9, 0)),
    Part.ArcOfCircle(Part.Circle(V(15, 12, 0), V(0, 0, 1), 3), math.radians(90), math.radians(270)),
    Part.LineSegment(V(15, 25.5, 0), V(65, 25.5, 0)),
    Part.ArcOfCircle(Part.Circle(V(65, 22.5, 0), V(0, 0, 1), 3), math.radians(-90), math.radians(90)),
    Part.LineSegment(V(65, 19.5, 0), V(15, 19.5, 0)),
    Part.ArcOfCircle(Part.Circle(V(15, 22.5, 0), V(0, 0, 1), 3), math.radians(90), math.radians(270)),
    Part.LineSegment(V(15, 36, 0), V(65, 36, 0)),
    Part.ArcOfCircle(Part.Circle(V(65, 33, 0), V(0, 0, 1), 3), math.radians(-90), math.radians(90)),
    Part.LineSegment(V(65, 30, 0), V(15, 30, 0)),
    Part.ArcOfCircle(Part.Circle(V(15, 33, 0), V(0, 0, 1), 3), math.radians(90), math.radians(270)),
    Part.LineSegment(V(15, 46.5, 0), V(65, 46.5, 0)),
    Part.ArcOfCircle(Part.Circle(V(65, 43.5, 0), V(0, 0, 1), 3), math.radians(-90), math.radians(90)),
    Part.LineSegment(V(65, 40.5, 0), V(15, 40.5, 0)),
    Part.ArcOfCircle(Part.Circle(V(15, 43.5, 0), V(0, 0, 1), 3), math.radians(90), math.radians(270)),
    Part.LineSegment(V(15, -16.5, 0), V(65, -16.5, 0)),
    Part.ArcOfCircle(Part.Circle(V(65, -19.5, 0), V(0, 0, 1), 3), math.radians(-90), math.radians(90)),
    Part.LineSegment(V(65, -22.5, 0), V(15, -22.5, 0)),
    Part.ArcOfCircle(Part.Circle(V(15, -19.5, 0), V(0, 0, 1), 3), math.radians(90), math.radians(270)),
    Part.LineSegment(V(15, 4.5, 0), V(65, 4.5, 0)),
    Part.ArcOfCircle(Part.Circle(V(65, 1.5, 0), V(0, 0, 1), 3), math.radians(-90), math.radians(90)),
    Part.LineSegment(V(65, -1.5, 0), V(15, -1.5, 0)),
    Part.ArcOfCircle(Part.Circle(V(15, 1.5, 0), V(0, 0, 1), 3), math.radians(90), math.radians(270)),
    Part.LineSegment(V(15, 57, 0), V(65, 57, 0)),
    Part.ArcOfCircle(Part.Circle(V(65, 54, 0), V(0, 0, 1), 3), math.radians(-90), math.radians(90)),
    Part.LineSegment(V(65, 51, 0), V(15, 51, 0)),
    Part.ArcOfCircle(Part.Circle(V(15, 54, 0), V(0, 0, 1), 3), math.radians(90), math.radians(270)),
], False)
sketch11.addConstraint([
    Sketcher.Constraint("Tangent", 1, 2, 2, 2),
    Sketcher.Constraint("Tangent", 2, 1, 3, 1),
    Sketcher.Constraint("Tangent", 3, 2, 4, 2),
    Sketcher.Constraint("Tangent", 4, 1, 1, 1),
    Sketcher.Constraint("Tangent", 5, 2, 6, 2),
    Sketcher.Constraint("Tangent", 6, 1, 7, 1),
    Sketcher.Constraint("Tangent", 7, 2, 8, 2),
    Sketcher.Constraint("Tangent", 8, 1, 5, 1),
    Sketcher.Constraint("Tangent", 9, 2, 10, 2),
    Sketcher.Constraint("Tangent", 10, 1, 11, 1),
    Sketcher.Constraint("Tangent", 11, 2, 12, 2),
    Sketcher.Constraint("Tangent", 12, 1, 9, 1),
    Sketcher.Constraint("Tangent", 13, 2, 14, 2),
    Sketcher.Constraint("Tangent", 14, 1, 15, 1),
    Sketcher.Constraint("Tangent", 15, 2, 16, 2),
    Sketcher.Constraint("Tangent", 16, 1, 13, 1),
    Sketcher.Constraint("Tangent", 17, 2, 18, 2),
    Sketcher.Constraint("Tangent", 18, 1, 19, 1),
    Sketcher.Constraint("Tangent", 19, 2, 20, 2),
    Sketcher.Constraint("Tangent", 20, 1, 17, 1),
    Sketcher.Constraint("Tangent", 21, 2, 22, 2),
    Sketcher.Constraint("Tangent", 22, 1, 23, 1),
    Sketcher.Constraint("Tangent", 23, 2, 24, 2),
    Sketcher.Constraint("Tangent", 24, 1, 21, 1),
    Sketcher.Constraint("Tangent", 25, 2, 26, 2),
    Sketcher.Constraint("Tangent", 26, 1, 27, 1),
    Sketcher.Constraint("Tangent", 27, 2, 28, 2),
    Sketcher.Constraint("Tangent", 28, 1, 25, 1),
    Sketcher.Constraint("Tangent", 29, 2, 30, 2),
    Sketcher.Constraint("Tangent", 30, 1, 31, 1),
    Sketcher.Constraint("Tangent", 31, 2, 32, 2),
    Sketcher.Constraint("Tangent", 32, 1, 29, 1),
    Sketcher.Constraint("Tangent", 33, 2, 34, 2),
    Sketcher.Constraint("Tangent", 34, 1, 35, 1),
    Sketcher.Constraint("Tangent", 35, 2, 36, 2),
    Sketcher.Constraint("Tangent", 36, 1, 33, 1),
    Sketcher.Constraint("Horizontal", 1),
    Sketcher.Constraint("Horizontal", 3),
    Sketcher.Constraint("Horizontal", 5),
    Sketcher.Constraint("Horizontal", 7),
    Sketcher.Constraint("Horizontal", 9),
    Sketcher.Constraint("Horizontal", 11),
    Sketcher.Constraint("Horizontal", 13),
    Sketcher.Constraint("Horizontal", 15),
    Sketcher.Constraint("Horizontal", 17),
    Sketcher.Constraint("Horizontal", 19),
    Sketcher.Constraint("Horizontal", 21),
    Sketcher.Constraint("Horizontal", 23),
    Sketcher.Constraint("Horizontal", 25),
    Sketcher.Constraint("Horizontal", 27),
    Sketcher.Constraint("Horizontal", 29),
    Sketcher.Constraint("Horizontal", 31),
    Sketcher.Constraint("Horizontal", 33),
    Sketcher.Constraint("Horizontal", 35),
    Sketcher.Constraint("Equal", 4, 6),
    Sketcher.Constraint("Equal", 8, 10),
    Sketcher.Constraint("Equal", 12, 14),
    Sketcher.Constraint("Equal", 16, 18),
    Sketcher.Constraint("Equal", 20, 22),
    Sketcher.Constraint("Equal", 24, 26),
    Sketcher.Constraint("Equal", 28, 30),
    Sketcher.Constraint("Equal", 32, 34),
    Sketcher.Constraint("Vertical", 2, 3, 6, 3),
    Sketcher.Constraint("Vertical", 4, 3, 8, 3),
    Sketcher.Constraint("Vertical", 6, 3, 10, 3),
    Sketcher.Constraint("Vertical", 8, 3, 12, 3),
    Sketcher.Constraint("Vertical", 10, 3, 14, 3),
    Sketcher.Constraint("Vertical", 12, 3, 16, 3),
    Sketcher.Constraint("Vertical", 14, 3, 18, 3),
    Sketcher.Constraint("Vertical", 16, 3, 20, 3),
    Sketcher.Constraint("Vertical", 18, 3, 22, 3),
    Sketcher.Constraint("Vertical", 20, 3, 24, 3),
    Sketcher.Constraint("Vertical", 22, 3, 26, 3),
    Sketcher.Constraint("Vertical", 24, 3, 28, 3),
    Sketcher.Constraint("Vertical", 26, 3, 30, 3),
    Sketcher.Constraint("Vertical", 28, 3, 32, 3),
    Sketcher.Constraint("Vertical", 30, 3, 34, 3),
    Sketcher.Constraint("Vertical", 32, 3, 36, 3),
    Sketcher.Constraint("Diameter", 0, Q("8 mm")),
    Sketcher.Constraint("Radius", 2, Q("3 mm")),
    Sketcher.Constraint("DistanceX", 1, 1, 1, 2, Q("50 mm")),
    Sketcher.Constraint("DistanceX", -1, 1, 0, 3, Q("10 mm")),
    Sketcher.Constraint("DistanceY", 0, 3, -1, 1, Q("41 mm")),
    Sketcher.Constraint("DistanceX", -1, 1, 2, 3, Q("65 mm")),
    Sketcher.Constraint("DistanceY", 2, 3, -1, 1, Q("30 mm")),
    Sketcher.Constraint("DistanceY", 6, 3, -1, 1, Q("9 mm")),
    Sketcher.Constraint("DistanceY", -1, 1, 10, 3, Q("12 mm")),
    Sketcher.Constraint("DistanceY", -1, 1, 18, 3, Q("33 mm")),
    Sketcher.Constraint("DistanceY", -1, 1, 34, 3, Q("54 mm")),
    Sketcher.Constraint("DistanceY", 14, 3, 22, 3, Q("21 mm")),
    Sketcher.Constraint("DistanceY", 26, 3, 14, 3, Q("42 mm")),
    Sketcher.Constraint("DistanceY", 30, 3, 14, 3, Q("21 mm")),
    Sketcher.Constraint("DistanceY", -1, 1, 14, 3, Q("22.5 mm")),
])
sketch11.setExpression("Constraints[78]", "Params.sketch11_diameter")
sketch11.setExpression("Constraints[79]", "Params.sketch11_radius")
sketch11.setExpression("Constraints[80]", "Params.sketch11_width")
pocket6 = doc.addObject("PartDesign::Pocket", "Pocket005")
body.addObject(pocket6)
pocket6.Profile = sketch11
pocket6.setExpression("Length", "Params.pocket6_length")
pocket6.Reversed = True

doc.recompute()
